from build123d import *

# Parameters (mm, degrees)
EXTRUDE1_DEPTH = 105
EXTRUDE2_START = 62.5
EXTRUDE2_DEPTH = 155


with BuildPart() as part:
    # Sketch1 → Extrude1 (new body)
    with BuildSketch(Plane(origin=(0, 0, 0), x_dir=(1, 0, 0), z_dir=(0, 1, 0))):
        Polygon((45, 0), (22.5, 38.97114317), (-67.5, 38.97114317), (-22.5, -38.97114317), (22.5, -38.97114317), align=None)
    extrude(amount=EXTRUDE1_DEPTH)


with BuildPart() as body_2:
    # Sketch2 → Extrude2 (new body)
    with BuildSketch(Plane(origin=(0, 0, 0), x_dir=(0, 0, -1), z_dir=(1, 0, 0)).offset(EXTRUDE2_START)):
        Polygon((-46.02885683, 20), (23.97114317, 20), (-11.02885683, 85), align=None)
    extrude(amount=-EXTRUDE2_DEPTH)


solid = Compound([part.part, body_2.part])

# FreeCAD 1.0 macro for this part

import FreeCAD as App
import Part
import Sketcher
from FreeCAD import Vector
Q = App.Units.Quantity

doc = App.newDocument("Part")
body = doc.addObject("PartDesign::Body", "Body")

# Sketch on XZ plane
sketch1 = body.newObject("Sketcher::SketchObject", "Sketch")
sketch1.AttachmentSupport = (doc.getObject("XZ_Plane"), [""])
sketch1.MapMode = "FlatFace"
sketch1.addGeometry([
    Part.LineSegment(Vector(45, 0, 0), Vector(22, -39, 0)),  # 0
    Part.LineSegment(Vector(22, -39, 0), Vector(-68, -39, 0)),  # 1
    Part.LineSegment(Vector(-68, -39, 0), Vector(-22, 39, 0)),  # 2
    Part.LineSegment(Vector(-22, 39, 0), Vector(22, 39, 0)),  # 3
    Part.LineSegment(Vector(22, 39, 0), Vector(45, 0, 0)),  # 4
], False)
sketch1.addConstraint([
    Sketcher.Constraint("Coincident", 0, 2, 1, 1),
    Sketcher.Constraint("Coincident", 1, 2, 2, 1),
    Sketcher.Constraint("Coincident", 2, 2, 3, 1),
    Sketcher.Constraint("Coincident", 3, 2, 4, 1),
    Sketcher.Constraint("Coincident", 4, 2, 0, 1),
    Sketcher.Constraint("Horizontal", 1),
    Sketcher.Constraint("Horizontal", 3),
    Sketcher.Constraint("Symmetric", 0, 2, 2, 2, -1, 1),
    Sketcher.Constraint("PointOnObject", 4, 2, -1),
    Sketcher.Constraint("Parallel", 0, 2),
    Sketcher.Constraint("Vertical", 0, 2, 3, 2),
    Sketcher.Constraint("DistanceX", 1, 2, 1, 1, Q("90 mm")),
    Sketcher.Constraint("DistanceX", 3, 1, 3, 2, Q("45 mm")),
    Sketcher.Constraint("Angle", 0, Q("-120 deg")),
])
pad1 = body.newObject("PartDesign::Pad", "Pad")
pad1.Profile = sketch1
pad1.Length = 105
pad1.Reversed = True
body2 = doc.addObject("PartDesign::Body", "Body001")

# Sketch on YZ plane
sketch2 = body2.newObject("Sketcher::SketchObject", "Sketch001")
sketch2.AttachmentSupport = (doc.getObject("YZ_Plane001"), [""])
sketch2.MapMode = "FlatFace"
sketch2.AttachmentOffset = App.Placement(Vector(0, 0, 62.5), App.Rotation())
sketch2.addGeometry([
    Part.LineSegment(Vector(20, 46, 0), Vector(20, -24, 0)),
    Part.LineSegment(Vector(20, -24, 0), Vector(85, 11, 0)),
    Part.LineSegment(Vector(85, 11, 0), Vector(20, 46, 0)),
], False)
sketch2.addConstraint([
    Sketcher.Constraint("Coincident", 0, 2, 1, 1),
    Sketcher.Constraint("Coincident", 1, 2, 2, 1),
    Sketcher.Constraint("Coincident", 2, 2, 0, 1),
    Sketcher.Constraint("Vertical", 0),
    Sketcher.Constraint("Equal", 1, 2),
    Sketcher.Constraint("DistanceY", 0, 2, 0, 1, Q("70 mm")),
    Sketcher.Constraint("DistanceX", -1, 1, 0, 2, Q("20 mm")),
    Sketcher.Constraint("DistanceX", -1, 1, 1, 2, Q("85 mm")),
    Sketcher.Constraint("DistanceY", 0, 2, -1, 1, Q("23.971143 mm")),
])
pad2 = body2.newObject("PartDesign::Pad", "Pad001")
pad2.Profile = sketch2
pad2.Length = 155
pad2.Reversed = True

doc.recompute()
